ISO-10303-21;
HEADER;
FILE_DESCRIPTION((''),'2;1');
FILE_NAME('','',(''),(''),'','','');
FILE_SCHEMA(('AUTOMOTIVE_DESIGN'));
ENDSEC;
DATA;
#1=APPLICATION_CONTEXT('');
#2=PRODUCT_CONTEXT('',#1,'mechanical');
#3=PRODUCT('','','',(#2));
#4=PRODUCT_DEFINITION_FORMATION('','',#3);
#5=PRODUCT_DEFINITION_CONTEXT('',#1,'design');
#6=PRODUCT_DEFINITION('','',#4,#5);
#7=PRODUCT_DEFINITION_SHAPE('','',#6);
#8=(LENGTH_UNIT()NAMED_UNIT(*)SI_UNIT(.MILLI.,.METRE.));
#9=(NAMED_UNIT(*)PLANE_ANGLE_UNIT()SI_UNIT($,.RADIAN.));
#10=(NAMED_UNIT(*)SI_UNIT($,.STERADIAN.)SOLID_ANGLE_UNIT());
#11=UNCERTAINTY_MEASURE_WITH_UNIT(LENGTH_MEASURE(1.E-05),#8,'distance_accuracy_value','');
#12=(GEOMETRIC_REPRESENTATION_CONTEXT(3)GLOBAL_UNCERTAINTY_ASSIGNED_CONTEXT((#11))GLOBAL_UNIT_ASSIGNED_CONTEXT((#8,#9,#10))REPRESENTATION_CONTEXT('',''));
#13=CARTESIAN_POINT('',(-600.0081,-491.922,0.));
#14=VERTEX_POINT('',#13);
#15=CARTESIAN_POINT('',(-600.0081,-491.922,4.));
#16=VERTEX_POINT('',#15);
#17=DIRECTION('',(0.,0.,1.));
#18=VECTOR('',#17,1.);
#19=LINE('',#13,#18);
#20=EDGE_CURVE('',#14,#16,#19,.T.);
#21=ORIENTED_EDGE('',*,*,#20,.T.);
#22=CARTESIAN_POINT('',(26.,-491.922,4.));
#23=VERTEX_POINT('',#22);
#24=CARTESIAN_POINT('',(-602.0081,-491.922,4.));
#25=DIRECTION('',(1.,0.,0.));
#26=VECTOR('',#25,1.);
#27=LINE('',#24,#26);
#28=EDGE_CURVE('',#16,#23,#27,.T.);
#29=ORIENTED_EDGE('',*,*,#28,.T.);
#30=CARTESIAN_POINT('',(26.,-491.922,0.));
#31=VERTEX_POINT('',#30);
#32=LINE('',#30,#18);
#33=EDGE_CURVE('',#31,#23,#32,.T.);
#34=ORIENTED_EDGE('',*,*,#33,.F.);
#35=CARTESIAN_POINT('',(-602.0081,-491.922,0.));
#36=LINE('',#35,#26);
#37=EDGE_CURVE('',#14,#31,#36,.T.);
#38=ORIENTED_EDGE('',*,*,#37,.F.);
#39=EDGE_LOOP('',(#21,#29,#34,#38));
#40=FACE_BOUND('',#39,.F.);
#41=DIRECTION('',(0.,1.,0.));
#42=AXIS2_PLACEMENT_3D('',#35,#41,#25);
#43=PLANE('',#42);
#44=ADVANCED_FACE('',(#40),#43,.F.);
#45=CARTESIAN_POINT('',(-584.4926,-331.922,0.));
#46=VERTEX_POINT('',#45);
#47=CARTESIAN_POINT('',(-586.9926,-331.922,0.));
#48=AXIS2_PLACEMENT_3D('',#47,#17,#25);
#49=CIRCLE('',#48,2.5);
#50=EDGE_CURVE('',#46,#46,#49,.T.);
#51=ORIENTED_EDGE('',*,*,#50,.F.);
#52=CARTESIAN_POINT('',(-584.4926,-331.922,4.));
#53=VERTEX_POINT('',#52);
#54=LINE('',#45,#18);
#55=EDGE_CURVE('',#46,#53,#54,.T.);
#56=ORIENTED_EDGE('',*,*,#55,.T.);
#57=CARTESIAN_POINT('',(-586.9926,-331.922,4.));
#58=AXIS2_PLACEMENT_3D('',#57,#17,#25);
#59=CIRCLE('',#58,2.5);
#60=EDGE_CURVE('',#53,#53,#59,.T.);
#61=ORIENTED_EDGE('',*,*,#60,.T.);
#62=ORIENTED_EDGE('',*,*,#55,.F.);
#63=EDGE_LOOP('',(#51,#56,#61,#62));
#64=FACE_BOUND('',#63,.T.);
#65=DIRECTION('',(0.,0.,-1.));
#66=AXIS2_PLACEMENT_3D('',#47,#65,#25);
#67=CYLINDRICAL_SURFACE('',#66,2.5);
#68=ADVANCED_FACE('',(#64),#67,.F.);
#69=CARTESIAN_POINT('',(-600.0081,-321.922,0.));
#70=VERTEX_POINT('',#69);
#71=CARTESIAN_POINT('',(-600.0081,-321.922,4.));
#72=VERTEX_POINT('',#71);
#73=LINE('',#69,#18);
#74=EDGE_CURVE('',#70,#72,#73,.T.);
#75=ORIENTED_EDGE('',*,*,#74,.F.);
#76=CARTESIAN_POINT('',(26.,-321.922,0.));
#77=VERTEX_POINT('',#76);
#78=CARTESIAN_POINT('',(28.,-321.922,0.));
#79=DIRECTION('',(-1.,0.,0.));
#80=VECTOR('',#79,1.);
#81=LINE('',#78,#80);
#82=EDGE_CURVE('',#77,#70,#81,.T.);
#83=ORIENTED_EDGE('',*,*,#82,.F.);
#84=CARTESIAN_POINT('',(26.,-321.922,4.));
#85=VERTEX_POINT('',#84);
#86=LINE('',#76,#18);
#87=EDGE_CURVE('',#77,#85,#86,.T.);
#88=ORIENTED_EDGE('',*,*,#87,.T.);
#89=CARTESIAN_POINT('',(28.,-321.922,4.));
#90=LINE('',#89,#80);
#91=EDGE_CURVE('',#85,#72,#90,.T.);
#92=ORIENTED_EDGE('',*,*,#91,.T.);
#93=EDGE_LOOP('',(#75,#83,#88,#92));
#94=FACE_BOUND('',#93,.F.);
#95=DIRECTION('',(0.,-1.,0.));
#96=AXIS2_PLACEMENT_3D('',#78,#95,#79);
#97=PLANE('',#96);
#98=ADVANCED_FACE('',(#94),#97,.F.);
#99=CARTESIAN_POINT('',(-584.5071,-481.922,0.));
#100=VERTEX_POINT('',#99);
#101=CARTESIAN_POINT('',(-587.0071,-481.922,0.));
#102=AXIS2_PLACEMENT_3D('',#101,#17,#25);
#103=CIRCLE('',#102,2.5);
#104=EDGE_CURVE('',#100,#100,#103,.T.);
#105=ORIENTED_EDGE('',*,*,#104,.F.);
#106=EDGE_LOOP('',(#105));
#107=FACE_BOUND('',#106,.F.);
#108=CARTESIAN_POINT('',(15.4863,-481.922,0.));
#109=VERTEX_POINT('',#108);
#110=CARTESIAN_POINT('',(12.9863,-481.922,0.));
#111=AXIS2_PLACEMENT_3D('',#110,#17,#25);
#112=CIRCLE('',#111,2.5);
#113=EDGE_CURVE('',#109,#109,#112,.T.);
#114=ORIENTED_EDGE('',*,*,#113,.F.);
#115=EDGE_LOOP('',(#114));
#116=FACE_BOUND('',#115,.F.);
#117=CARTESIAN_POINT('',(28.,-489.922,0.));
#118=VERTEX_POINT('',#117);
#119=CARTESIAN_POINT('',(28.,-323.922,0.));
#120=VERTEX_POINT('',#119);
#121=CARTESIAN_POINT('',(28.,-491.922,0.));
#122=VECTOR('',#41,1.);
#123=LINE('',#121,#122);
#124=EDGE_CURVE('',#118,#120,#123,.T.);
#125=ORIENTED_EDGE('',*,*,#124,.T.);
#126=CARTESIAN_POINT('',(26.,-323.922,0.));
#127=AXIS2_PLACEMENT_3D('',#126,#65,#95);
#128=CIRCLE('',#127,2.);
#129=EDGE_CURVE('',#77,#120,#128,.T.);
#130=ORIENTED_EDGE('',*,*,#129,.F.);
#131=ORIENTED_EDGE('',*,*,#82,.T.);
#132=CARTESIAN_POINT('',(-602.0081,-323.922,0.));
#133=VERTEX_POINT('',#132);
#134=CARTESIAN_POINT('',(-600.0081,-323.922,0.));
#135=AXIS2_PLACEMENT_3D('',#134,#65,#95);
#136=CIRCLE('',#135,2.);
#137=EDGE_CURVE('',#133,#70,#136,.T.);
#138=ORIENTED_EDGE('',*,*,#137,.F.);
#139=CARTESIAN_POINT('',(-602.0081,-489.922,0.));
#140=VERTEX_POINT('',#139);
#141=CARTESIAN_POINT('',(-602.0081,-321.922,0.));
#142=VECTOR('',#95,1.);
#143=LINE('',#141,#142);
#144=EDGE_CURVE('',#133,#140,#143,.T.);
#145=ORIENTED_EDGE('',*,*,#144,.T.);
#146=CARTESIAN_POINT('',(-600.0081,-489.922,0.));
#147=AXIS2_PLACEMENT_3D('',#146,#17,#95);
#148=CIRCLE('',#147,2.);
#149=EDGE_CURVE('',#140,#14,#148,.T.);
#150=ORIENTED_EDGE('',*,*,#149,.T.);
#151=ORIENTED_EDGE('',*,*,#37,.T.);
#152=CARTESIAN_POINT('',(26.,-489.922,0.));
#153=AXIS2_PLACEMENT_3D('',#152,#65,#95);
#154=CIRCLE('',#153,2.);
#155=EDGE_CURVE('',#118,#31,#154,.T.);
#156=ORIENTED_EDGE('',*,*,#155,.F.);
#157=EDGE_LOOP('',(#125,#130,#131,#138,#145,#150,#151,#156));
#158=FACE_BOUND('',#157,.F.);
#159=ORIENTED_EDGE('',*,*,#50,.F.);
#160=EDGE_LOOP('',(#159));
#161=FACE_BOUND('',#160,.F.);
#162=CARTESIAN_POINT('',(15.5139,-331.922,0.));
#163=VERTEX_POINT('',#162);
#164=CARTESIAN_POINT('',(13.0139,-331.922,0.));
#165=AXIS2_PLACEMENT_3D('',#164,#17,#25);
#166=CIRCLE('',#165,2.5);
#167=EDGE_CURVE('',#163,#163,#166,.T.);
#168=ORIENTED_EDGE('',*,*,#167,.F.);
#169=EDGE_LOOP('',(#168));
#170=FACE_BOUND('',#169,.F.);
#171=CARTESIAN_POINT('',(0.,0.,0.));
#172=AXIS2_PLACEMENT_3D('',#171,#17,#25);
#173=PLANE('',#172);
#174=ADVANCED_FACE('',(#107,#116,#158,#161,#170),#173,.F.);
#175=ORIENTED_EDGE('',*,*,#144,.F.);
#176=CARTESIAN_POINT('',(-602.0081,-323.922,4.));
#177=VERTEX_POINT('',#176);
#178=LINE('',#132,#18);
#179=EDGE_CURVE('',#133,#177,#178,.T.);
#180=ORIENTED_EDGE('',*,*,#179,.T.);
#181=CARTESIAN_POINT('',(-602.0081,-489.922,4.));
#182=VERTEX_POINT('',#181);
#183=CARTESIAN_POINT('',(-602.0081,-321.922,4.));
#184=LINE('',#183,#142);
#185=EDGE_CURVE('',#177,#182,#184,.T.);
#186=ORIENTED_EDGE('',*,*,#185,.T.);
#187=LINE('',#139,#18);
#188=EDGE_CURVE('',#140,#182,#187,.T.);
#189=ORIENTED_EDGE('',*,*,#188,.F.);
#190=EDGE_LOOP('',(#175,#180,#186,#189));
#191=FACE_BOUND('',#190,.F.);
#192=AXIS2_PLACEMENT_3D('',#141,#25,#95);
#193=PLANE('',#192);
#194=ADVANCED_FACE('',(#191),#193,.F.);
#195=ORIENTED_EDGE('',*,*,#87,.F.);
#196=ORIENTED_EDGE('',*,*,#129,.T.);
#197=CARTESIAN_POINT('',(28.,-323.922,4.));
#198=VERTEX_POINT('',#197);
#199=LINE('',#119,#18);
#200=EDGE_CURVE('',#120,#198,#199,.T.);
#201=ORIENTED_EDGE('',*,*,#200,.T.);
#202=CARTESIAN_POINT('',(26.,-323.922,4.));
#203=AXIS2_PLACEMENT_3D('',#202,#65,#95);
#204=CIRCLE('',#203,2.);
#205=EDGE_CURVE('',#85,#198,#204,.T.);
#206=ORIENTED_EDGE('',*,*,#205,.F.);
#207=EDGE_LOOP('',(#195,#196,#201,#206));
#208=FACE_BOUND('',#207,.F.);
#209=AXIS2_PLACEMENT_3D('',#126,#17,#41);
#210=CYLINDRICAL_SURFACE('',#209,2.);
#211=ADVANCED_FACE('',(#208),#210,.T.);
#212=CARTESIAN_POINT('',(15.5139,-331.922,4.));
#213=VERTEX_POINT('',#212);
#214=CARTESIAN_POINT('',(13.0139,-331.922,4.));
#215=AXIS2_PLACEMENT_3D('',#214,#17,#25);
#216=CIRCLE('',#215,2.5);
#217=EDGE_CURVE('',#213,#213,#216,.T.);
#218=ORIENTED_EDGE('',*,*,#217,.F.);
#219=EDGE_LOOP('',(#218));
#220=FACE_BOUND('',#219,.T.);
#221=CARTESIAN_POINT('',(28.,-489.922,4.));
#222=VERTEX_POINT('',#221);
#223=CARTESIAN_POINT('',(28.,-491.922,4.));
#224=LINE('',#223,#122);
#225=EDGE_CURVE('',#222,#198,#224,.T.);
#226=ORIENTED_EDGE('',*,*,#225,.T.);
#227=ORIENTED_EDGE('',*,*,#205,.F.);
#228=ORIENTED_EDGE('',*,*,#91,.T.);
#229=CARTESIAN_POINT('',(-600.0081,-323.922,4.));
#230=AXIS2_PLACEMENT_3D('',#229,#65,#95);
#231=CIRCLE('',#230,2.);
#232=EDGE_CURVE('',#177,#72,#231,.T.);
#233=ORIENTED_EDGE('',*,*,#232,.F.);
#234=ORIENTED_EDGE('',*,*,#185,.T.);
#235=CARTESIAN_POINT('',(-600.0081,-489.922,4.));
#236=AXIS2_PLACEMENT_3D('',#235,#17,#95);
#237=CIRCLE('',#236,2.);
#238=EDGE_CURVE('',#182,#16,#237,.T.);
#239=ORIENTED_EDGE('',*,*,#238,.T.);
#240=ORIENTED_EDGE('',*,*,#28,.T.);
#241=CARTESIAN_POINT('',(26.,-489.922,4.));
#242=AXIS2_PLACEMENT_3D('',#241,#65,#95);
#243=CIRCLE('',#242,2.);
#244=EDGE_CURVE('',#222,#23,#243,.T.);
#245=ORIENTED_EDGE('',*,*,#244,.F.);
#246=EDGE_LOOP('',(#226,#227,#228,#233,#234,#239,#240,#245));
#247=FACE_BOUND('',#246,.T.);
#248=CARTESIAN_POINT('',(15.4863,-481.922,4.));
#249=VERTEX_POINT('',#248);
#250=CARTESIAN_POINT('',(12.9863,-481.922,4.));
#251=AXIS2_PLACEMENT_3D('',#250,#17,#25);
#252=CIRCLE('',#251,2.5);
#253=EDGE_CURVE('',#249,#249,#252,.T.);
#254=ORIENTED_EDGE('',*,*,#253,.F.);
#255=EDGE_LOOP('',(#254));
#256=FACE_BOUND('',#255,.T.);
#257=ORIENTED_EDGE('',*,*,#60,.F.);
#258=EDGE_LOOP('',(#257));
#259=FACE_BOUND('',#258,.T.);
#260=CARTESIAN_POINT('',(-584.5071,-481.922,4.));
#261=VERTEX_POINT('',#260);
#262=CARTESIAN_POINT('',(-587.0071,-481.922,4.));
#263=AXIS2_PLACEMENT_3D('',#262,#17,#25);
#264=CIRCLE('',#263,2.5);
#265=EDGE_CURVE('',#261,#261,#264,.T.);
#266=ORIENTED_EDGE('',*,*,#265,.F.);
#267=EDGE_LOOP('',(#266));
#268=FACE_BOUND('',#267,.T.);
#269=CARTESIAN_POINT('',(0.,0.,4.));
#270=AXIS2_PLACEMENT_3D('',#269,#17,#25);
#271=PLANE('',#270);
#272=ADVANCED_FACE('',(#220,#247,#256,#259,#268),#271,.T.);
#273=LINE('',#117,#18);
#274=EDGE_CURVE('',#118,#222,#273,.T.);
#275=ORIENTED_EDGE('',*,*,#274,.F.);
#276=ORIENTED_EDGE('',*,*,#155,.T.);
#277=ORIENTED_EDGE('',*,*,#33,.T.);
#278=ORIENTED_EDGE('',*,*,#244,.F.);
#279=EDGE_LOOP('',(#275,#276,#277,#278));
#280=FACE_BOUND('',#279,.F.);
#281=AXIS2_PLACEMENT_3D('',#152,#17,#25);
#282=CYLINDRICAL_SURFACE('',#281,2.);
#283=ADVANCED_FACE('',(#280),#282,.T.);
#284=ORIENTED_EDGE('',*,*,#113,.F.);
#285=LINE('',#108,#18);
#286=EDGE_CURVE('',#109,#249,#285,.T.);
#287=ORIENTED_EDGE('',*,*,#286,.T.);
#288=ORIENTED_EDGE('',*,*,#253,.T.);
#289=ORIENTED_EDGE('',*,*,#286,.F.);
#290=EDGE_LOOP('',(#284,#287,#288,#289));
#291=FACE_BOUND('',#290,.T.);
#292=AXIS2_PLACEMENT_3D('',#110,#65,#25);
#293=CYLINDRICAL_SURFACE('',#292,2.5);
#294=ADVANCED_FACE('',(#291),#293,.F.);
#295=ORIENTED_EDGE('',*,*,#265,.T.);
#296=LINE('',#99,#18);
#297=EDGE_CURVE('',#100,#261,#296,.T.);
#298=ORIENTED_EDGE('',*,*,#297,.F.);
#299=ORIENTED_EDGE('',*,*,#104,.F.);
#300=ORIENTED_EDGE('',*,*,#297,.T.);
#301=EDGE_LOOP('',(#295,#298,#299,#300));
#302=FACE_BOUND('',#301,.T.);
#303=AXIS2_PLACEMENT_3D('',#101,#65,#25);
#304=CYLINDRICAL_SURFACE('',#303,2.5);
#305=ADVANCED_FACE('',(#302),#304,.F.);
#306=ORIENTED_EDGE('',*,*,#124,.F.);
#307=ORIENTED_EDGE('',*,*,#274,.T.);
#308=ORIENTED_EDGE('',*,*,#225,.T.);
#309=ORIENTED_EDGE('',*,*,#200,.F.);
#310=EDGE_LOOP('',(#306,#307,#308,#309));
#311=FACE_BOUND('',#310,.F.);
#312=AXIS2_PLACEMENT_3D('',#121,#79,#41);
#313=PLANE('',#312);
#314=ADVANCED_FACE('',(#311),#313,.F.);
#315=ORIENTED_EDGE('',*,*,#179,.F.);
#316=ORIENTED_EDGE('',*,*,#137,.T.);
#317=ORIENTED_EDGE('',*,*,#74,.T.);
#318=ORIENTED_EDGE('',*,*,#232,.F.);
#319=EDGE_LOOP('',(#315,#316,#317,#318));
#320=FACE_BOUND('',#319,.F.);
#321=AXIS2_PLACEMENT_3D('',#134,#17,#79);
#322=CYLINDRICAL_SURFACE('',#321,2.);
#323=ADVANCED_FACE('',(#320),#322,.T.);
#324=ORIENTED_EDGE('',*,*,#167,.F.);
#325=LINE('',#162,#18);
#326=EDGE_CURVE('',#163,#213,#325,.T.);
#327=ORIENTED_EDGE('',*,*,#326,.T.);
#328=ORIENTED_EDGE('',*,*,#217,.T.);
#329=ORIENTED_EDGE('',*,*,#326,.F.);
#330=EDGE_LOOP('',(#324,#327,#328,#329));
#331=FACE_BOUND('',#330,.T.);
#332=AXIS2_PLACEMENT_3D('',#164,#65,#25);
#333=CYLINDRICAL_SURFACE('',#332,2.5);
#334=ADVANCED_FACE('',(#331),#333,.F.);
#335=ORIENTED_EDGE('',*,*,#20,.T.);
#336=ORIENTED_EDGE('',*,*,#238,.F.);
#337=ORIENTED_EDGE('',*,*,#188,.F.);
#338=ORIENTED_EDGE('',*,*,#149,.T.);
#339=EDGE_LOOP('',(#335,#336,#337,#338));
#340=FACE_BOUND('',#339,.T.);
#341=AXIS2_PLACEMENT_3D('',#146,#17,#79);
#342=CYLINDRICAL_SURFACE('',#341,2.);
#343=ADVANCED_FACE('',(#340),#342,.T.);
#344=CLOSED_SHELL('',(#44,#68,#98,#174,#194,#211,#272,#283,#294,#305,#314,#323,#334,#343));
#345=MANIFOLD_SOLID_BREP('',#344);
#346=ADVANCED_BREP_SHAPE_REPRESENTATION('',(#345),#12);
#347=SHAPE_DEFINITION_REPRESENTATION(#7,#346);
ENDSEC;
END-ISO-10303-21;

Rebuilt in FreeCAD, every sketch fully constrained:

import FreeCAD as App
import Part
import Sketcher

V = App.Vector
Q = App.Units.Quantity


def edges_at(feature, points):
    """Names of the edges that pass closest to the given points."""
    edges = feature.Shape.Edges
    near = lambda p: min(range(len(edges)), key=lambda i: edges[i].distToShape(Part.Vertex(*p))[0])
    return sorted({f"Edge{near(p) + 1}" for p in points})

doc = App.newDocument("Part")
body = doc.addObject("PartDesign::Body", "Body")

# Sketch on XY plane
sketch1 = doc.addObject("Sketcher::SketchObject", "Sketch")
body.addObject(sketch1)
sketch1.AttachmentSupport = (doc.XY_Plane, [""])
sketch1.MapMode = "FlatFace"
sketch1.addGeometry([
    Part.LineSegment(V(-602, -321.9, 0), V(-602, -491.9, 0)),  # 0
    Part.LineSegment(V(-602, -491.9, 0), V(28, -491.9, 0)),  # 1
    Part.LineSegment(V(28, -491.9, 0), V(28, -321.9, 0)),  # 2
    Part.LineSegment(V(28, -321.9, 0), V(-602, -321.9, 0)),  # 3
    Part.Circle(V(-587, -481.9, 0), V(0, 0, 1), 2.5),  # 4
    Part.Circle(V(13, -481.9, 0), V(0, 0, 1), 2.5),  # 5
    Part.Circle(V(-587, -331.9, 0), V(0, 0, 1), 2.5),  # 6
    Part.Circle(V(13, -331.9, 0), V(0, 0, 1), 2.5),  # 7
], False)
sketch1.addConstraint([
    Sketcher.Constraint("Coincident", 0, 2, 1, 1),
    Sketcher.Constraint("Coincident", 1, 2, 2, 1),
    Sketcher.Constraint("Coincident", 2, 2, 3, 1),
    Sketcher.Constraint("Coincident", 3, 2, 0, 1),
    Sketcher.Constraint("Vertical", 0),
    Sketcher.Constraint("Horizontal", 1),
    Sketcher.Constraint("Vertical", 2),
    Sketcher.Constraint("Horizontal", 3),
    Sketcher.Constraint("Equal", 4, 5),
    Sketcher.Constraint("Equal", 5, 6),
    Sketcher.Constraint("Equal", 6, 7),
    Sketcher.Constraint("Horizontal", 4, 3, 5, 3),
    Sketcher.Constraint("Horizontal", 6, 3, 7, 3),
    Sketcher.Constraint("Diameter", 4, Q("5 mm")),
    Sketcher.Constraint("DistanceY", 0, 2, 0, 1, Q("170 mm")),
    Sketcher.Constraint("DistanceY", 0, 2, 4, 3, Q("10 mm")),
    Sketcher.Constraint("DistanceY", 7, 3, 2, 2, Q("10 mm")),
    Sketcher.Constraint("DistanceX", -1, 1, 1, 2, Q("28 mm")),
    Sketcher.Constraint("DistanceX", 1, 1, 1, 2, Q("630.008 mm")),
    Sketcher.Constraint("DistanceX", 4, 3, -1, 1, Q("587.007 mm")),
    Sketcher.Constraint("DistanceY", 4, 3, -1, 1, Q("481.922 mm")),
    Sketcher.Constraint("DistanceX", -1, 1, 7, 3, Q("13.014 mm")),
    Sketcher.Constraint("DistanceX", 6, 3, 5, 3, Q("599.979 mm")),
    Sketcher.Constraint("DistanceX", -1, 1, 5, 3, Q("12.9863 mm")),
])
pad1 = doc.addObject("PartDesign::Pad", "Pad")
body.addObject(pad1)
pad1.Profile = sketch1
pad1.Length = 4
doc.recompute()

fillet = doc.addObject("PartDesign::Fillet", "Fillet")
body.addObject(fillet)
fillet.Base = (pad1, edges_at(pad1, [
    (28, -491.922, 2),
    (28, -321.922, 2),
    (-602.008, -321.922, 2),
    (-602.008, -491.922, 2),
]))
fillet.Radius = 2

doc.recompute()
